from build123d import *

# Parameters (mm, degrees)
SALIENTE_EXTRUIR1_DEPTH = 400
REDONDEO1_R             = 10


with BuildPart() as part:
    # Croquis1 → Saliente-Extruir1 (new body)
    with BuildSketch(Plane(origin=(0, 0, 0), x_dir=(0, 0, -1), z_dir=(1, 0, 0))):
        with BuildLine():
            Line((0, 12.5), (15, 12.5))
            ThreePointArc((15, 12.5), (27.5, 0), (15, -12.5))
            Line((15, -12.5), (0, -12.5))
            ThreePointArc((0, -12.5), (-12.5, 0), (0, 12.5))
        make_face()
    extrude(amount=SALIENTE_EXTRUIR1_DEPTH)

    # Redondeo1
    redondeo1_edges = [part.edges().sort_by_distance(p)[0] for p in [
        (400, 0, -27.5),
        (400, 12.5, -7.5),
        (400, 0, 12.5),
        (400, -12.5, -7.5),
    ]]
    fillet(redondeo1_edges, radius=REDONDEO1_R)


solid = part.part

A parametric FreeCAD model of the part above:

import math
import FreeCAD as App
import Part
import Sketcher

V = App.Vector
Q = App.Units.Quantity


def edges_at(feature, points):
    """Names of the edges that pass closest to the given points."""
    edges = feature.Shape.Edges
    near = lambda p: min(range(len(edges)), key=lambda i: edges[i].distToShape(Part.Vertex(*p))[0])
    return sorted({f"Edge{near(p) + 1}" for p in points})

doc = App.newDocument("Part")
body = doc.addObject("PartDesign::Body", "Body")

# Sketch on YZ plane
sketch1 = body.newObject("Sketcher::SketchObject", "Sketch")
sketch1.AttachmentSupport = (doc.getObject("YZ_Plane"), [""])
sketch1.MapMode = "FlatFace"
sketch1.addGeometry(Part.LineSegment(V(12.5, -15, 0), V(12.5, 0, 0)), False)
sketch1.addGeometry(Part.ArcOfCircle(Part.Circle(V(0, 0, 0), V(0, 0, 1), 12.5), math.radians(0), math.radians(180)), False)
sketch1.addGeometry(Part.LineSegment(V(-12.5, 0, 0), V(-12.5, -15, 0)), False)
sketch1.addGeometry(Part.ArcOfCircle(Part.Circle(V(0, -15, 0), V(0, 0, 1), 12.5), math.radians(180), math.radians(360)), False)
sketch1.addConstraint(Sketcher.Constraint("Tangent", 0, 2, 1, 1))
sketch1.addConstraint(Sketcher.Constraint("Tangent", 1, 2, 2, 1))
sketch1.addConstraint(Sketcher.Constraint("Tangent", 2, 2, 3, 1))
sketch1.addConstraint(Sketcher.Constraint("Tangent", 3, 2, 0, 1))
sketch1.addConstraint(Sketcher.Constraint("Vertical", 0))
sketch1.addConstraint(Sketcher.Constraint("Vertical", 2))
sketch1.addConstraint(Sketcher.Constraint("Coincident", 1, 3, -1, 1))
sketch1.addConstraint(Sketcher.Constraint("Radius", 1, Q("12.5 mm")))
sketch1.addConstraint(Sketcher.Constraint("DistanceY", 0, 1, 0, 2, Q("15 mm")))
pad1 = body.newObject("PartDesign::Pad", "Pad")
pad1.Profile = sketch1
pad1.Length = 400
doc.recompute()

fillet = body.newObject("PartDesign::Fillet", "Fillet")
fillet.Base = (pad1, edges_at(pad1, [
    (400, 0, -27.5),
    (400, 12.5, -7.5),
    (400, 0, 12.5),
    (400, -12.5, -7.5),
]))
fillet.Radius = 10

doc.recompute()
